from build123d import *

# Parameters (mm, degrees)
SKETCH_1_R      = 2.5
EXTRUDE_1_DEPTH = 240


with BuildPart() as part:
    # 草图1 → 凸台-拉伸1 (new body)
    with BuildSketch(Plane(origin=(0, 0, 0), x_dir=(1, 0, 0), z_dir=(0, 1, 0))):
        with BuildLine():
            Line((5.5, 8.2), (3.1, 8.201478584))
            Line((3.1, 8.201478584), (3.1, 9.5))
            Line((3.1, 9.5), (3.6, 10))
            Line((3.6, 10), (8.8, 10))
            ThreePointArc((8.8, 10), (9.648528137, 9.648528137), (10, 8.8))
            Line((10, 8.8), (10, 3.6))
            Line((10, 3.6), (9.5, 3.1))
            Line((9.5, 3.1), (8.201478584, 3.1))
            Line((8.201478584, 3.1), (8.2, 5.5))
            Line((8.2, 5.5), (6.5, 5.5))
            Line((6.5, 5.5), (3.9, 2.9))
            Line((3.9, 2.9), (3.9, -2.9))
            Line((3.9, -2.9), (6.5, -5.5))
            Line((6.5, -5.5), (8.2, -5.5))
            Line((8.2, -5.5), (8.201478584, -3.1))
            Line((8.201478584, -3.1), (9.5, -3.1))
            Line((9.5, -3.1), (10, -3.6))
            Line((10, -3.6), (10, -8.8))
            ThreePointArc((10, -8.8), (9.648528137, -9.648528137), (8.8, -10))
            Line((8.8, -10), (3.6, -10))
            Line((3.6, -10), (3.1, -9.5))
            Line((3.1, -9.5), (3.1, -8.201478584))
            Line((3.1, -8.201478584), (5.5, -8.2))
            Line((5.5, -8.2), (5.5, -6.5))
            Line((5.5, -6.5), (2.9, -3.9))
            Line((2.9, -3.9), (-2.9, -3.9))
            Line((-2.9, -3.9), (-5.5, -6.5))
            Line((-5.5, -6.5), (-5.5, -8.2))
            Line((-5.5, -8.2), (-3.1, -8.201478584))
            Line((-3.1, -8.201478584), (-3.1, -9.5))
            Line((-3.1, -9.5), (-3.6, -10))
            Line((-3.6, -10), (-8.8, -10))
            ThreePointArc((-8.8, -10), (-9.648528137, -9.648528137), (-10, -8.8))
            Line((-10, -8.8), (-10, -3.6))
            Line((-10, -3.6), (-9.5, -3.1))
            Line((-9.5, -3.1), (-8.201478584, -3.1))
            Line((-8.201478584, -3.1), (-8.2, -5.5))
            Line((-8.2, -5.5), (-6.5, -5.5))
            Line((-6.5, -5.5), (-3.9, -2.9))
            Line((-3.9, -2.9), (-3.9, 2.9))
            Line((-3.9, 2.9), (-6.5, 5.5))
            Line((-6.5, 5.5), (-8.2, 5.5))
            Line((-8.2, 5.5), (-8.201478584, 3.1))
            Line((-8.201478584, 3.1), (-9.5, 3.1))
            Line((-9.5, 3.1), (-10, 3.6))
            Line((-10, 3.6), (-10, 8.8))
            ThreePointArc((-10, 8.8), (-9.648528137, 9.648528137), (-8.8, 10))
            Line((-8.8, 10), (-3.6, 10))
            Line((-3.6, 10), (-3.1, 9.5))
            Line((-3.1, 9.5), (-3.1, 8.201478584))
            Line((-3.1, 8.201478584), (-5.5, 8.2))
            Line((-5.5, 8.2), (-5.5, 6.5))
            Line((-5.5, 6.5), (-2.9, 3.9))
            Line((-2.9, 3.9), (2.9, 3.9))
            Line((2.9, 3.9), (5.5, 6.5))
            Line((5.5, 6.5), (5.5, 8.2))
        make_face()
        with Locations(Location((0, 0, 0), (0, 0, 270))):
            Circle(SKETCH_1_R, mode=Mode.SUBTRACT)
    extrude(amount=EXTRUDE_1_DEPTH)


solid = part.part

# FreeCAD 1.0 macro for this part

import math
import FreeCAD as App
import Part
import Sketcher

V = App.Vector
Q = App.Units.Quantity

doc = App.newDocument("Part")
body = doc.addObject("PartDesign::Body", "Body")

# Sketch on XZ plane
sketch1 = body.newObject("Sketcher::SketchObject", "Sketch")
sketch1.AttachmentSupport = (doc.getObject("XZ_Plane"), [""])
sketch1.MapMode = "FlatFace"
sketch1.addGeometry(Part.LineSegment(V(3.1, -8.201479, 0), V(5.5, -8.2, 0)), False)
sketch1.addGeometry(Part.LineSegment(V(5.5, -8.2, 0), V(5.5, -6.5, 0)), False)
sketch1.addGeometry(Part.LineSegment(V(5.5, -6.5, 0), V(2.9, -3.9, 0)), False)
sketch1.addGeometry(Part.LineSegment(V(2.9, -3.9, 0), V(-2.9, -3.9, 0)), False)
sketch1.addGeometry(Part.LineSegment(V(-2.9, -3.9, 0), V(-5.5, -6.5, 0)), False)
sketch1.addGeometry(Part.LineSegment(V(-5.5, -6.5, 0), V(-5.5, -8.2, 0)), False)
sketch1.addGeometry(Part.LineSegment(V(-5.5, -8.2, 0), V(-3.1, -8.201479, 0)), False)
sketch1.addGeometry(Part.LineSegment(V(-3.1, -8.201479, 0), V(-3.1, -9.5, 0)), False)
sketch1.addGeometry(Part.LineSegment(V(-3.1, -9.5, 0), V(-3.6, -10, 0)), False)
sketch1.addGeometry(Part.LineSegment(V(-3.6, -10, 0), V(-8.8, -10, 0)), False)
sketch1.addGeometry(Part.ArcOfCircle(Part.Circle(V(-8.8, -8.8, 0), V(0, 0, 1), 1.2), math.radians(-180), math.radians(-90)), False)
sketch1.addGeometry(Part.LineSegment(V(-10, -8.8, 0), V(-10, -3.6, 0)), False)
sketch1.addGeometry(Part.LineSegment(V(-10, -3.6, 0), V(-9.5, -3.1, 0)), False)
sketch1.addGeometry(Part.LineSegment(V(-9.5, -3.1, 0), V(-8.201479, -3.1, 0)), False)
sketch1.addGeometry(Part.LineSegment(V(-8.201479, -3.1, 0), V(-8.2, -5.5, 0)), False)
sketch1.addGeometry(Part.LineSegment(V(-8.2, -5.5, 0), V(-6.5, -5.5, 0)), False)
sketch1.addGeometry(Part.LineSegment(V(-6.5, -5.5, 0), V(-3.9, -2.9, 0)), False)
sketch1.addGeometry(Part.LineSegment(V(-3.9, -2.9, 0), V(-3.9, 2.9, 0)), False)
sketch1.addGeometry(Part.LineSegment(V(-3.9, 2.9, 0), V(-6.5, 5.5, 0)), False)
sketch1.addGeometry(Part.LineSegment(V(-6.5, 5.5, 0), V(-8.2, 5.5, 0)), False)
sketch1.addGeometry(Part.LineSegment(V(-8.2, 5.5, 0), V(-8.201479, 3.1, 0)), False)
sketch1.addGeometry(Part.LineSegment(V(-8.201479, 3.1, 0), V(-9.5, 3.1, 0)), False)
sketch1.addGeometry(Part.LineSegment(V(-9.5, 3.1, 0), V(-10, 3.6, 0)), False)
sketch1.addGeometry(Part.LineSegment(V(-10, 3.6, 0), V(-10, 8.8, 0)), False)
sketch1.addGeometry(Part.ArcOfCircle(Part.Circle(V(-8.8, 8.8, 0), V(0, 0, 1), 1.2), math.radians(90), math.radians(180)), False)
sketch1.addGeometry(Part.LineSegment(V(-8.8, 10, 0), V(-3.6, 10, 0)), False)
sketch1.addGeometry(Part.LineSegment(V(-3.6, 10, 0), V(-3.1, 9.5, 0)), False)
sketch1.addGeometry(Part.LineSegment(V(-3.1, 9.5, 0), V(-3.1, 8.201479, 0)), False)
sketch1.addGeometry(Part.LineSegment(V(-3.1, 8.201479, 0), V(-5.5, 8.2, 0)), False)
sketch1.addGeometry(Part.LineSegment(V(-5.5, 8.2, 0), V(-5.5, 6.5, 0)), False)
sketch1.addGeometry(Part.LineSegment(V(-5.5, 6.5, 0), V(-2.9, 3.9, 0)), False)
sketch1.addGeometry(Part.LineSegment(V(-2.9, 3.9, 0), V(2.9, 3.9, 0)), False)
sketch1.addGeometry(Part.LineSegment(V(2.9, 3.9, 0), V(5.5, 6.5, 0)), False)
sketch1.addGeometry(Part.LineSegment(V(5.5, 6.5, 0), V(5.5, 8.2, 0)), False)
sketch1.addGeometry(Part.LineSegment(V(5.5, 8.2, 0), V(3.1, 8.201479, 0)), False)
sketch1.addGeometry(Part.LineSegment(V(3.1, 8.201479, 0), V(3.1, 9.5, 0)), False)
sketch1.addGeometry(Part.LineSegment(V(3.1, 9.5, 0), V(3.6, 10, 0)), False)
sketch1.addGeometry(Part.LineSegment(V(3.6, 10, 0), V(8.8, 10, 0)), False)
sketch1.addGeometry(Part.ArcOfCircle(Part.Circle(V(8.8, 8.8, 0), V(0, 0, 1), 1.2), math.radians(0), math.radians(90)), False)
sketch1.addGeometry(Part.LineSegment(V(10, 8.8, 0), V(10, 3.6, 0)), False)
sketch1.addGeometry(Part.LineSegment(V(10, 3.6, 0), V(9.5, 3.1, 0)), False)
sketch1.addGeometry(Part.LineSegment(V(9.5, 3.1, 0), V(8.201479, 3.1, 0)), False)
sketch1.addGeometry(Part.LineSegment(V(8.201479, 3.1, 0), V(8.2, 5.5, 0)), False)
sketch1.addGeometry(Part.LineSegment(V(8.2, 5.5, 0), V(6.5, 5.5, 0)), False)
sketch1.addGeometry(Part.LineSegment(V(6.5, 5.5, 0), V(3.9, 2.9, 0)), False)
sketch1.addGeometry(Part.LineSegment(V(3.9, 2.9, 0), V(3.9, -2.9, 0)), False)
sketch1.addGeometry(Part.LineSegment(V(3.9, -2.9, 0), V(6.5, -5.5, 0)), False)
sketch1.addGeometry(Part.LineSegment(V(6.5, -5.5, 0), V(8.2, -5.5, 0)), False)
sketch1.addGeometry(Part.LineSegment(V(8.2, -5.5, 0), V(8.201479, -3.1, 0)), False)
sketch1.addGeometry(Part.LineSegment(V(8.201479, -3.1, 0), V(9.5, -3.1, 0)), False)
sketch1.addGeometry(Part.LineSegment(V(9.5, -3.1, 0), V(10, -3.6, 0)), False)
sketch1.addGeometry(Part.LineSegment(V(10, -3.6, 0), V(10, -8.8, 0)), False)
sketch1.addGeometry(Part.ArcOfCircle(Part.Circle(V(8.8, -8.8, 0), V(0, 0, 1), 1.2), math.radians(-90), math.radians(0)), False)
sketch1.addGeometry(Part.LineSegment(V(8.8, -10, 0), V(3.6, -10, 0)), False)
sketch1.addGeometry(Part.LineSegment(V(3.6, -10, 0), V(3.1, -9.5, 0)), False)
sketch1.addGeometry(Part.LineSegment(V(3.1, -9.5, 0), V(3.1, -8.201479, 0)), False)
sketch1.addGeometry(Part.Circle(V(0, 0, 0), V(0, 0, 1), 2.5), False)
sketch1.addConstraint(Sketcher.Constraint("Coincident", 0, 2, 1, 1))
sketch1.addConstraint(Sketcher.Constraint("Coincident", 1, 2, 2, 1))
sketch1.addConstraint(Sketcher.Constraint("Coincident", 2, 2, 3, 1))
sketch1.addConstraint(Sketcher.Constraint("Coincident", 3, 2, 4, 1))
sketch1.addConstraint(Sketcher.Constraint("Coincident", 4, 2, 5, 1))
sketch1.addConstraint(Sketcher.Constraint("Coincident", 5, 2, 6, 1))
sketch1.addConstraint(Sketcher.Constraint("Coincident", 6, 2, 7, 1))
sketch1.addConstraint(Sketcher.Constraint("Coincident", 7, 2, 8, 1))
sketch1.addConstraint(Sketcher.Constraint("Coincident", 8, 2, 9, 1))
sketch1.addConstraint(Sketcher.Constraint("Tangent", 9, 2, 10, 2))
sketch1.addConstraint(Sketcher.Constraint("Tangent", 10, 1, 11, 1))
sketch1.addConstraint(Sketcher.Constraint("Coincident", 11, 2, 12, 1))
sketch1.addConstraint(Sketcher.Constraint("Coincident", 12, 2, 13, 1))
sketch1.addConstraint(Sketcher.Constraint("Coincident", 13, 2, 14, 1))
sketch1.addConstraint(Sketcher.Constraint("Coincident", 14, 2, 15, 1))
sketch1.addConstraint(Sketcher.Constraint("Coincident", 15, 2, 16, 1))
sketch1.addConstraint(Sketcher.Constraint("Coincident", 16, 2, 17, 1))
sketch1.addConstraint(Sketcher.Constraint("Coincident", 17, 2, 18, 1))
sketch1.addConstraint(Sketcher.Constraint("Coincident", 18, 2, 19, 1))
sketch1.addConstraint(Sketcher.Constraint("Coincident", 19, 2, 20, 1))
sketch1.addConstraint(Sketcher.Constraint("Coincident", 20, 2, 21, 1))
sketch1.addConstraint(Sketcher.Constraint("Coincident", 21, 2, 22, 1))
sketch1.addConstraint(Sketcher.Constraint("Coincident", 22, 2, 23, 1))
sketch1.addConstraint(Sketcher.Constraint("Tangent", 23, 2, 24, 2))
sketch1.addConstraint(Sketcher.Constraint("Tangent", 24, 1, 25, 1))
sketch1.addConstraint(Sketcher.Constraint("Coincident", 25, 2, 26, 1))
sketch1.addConstraint(Sketcher.Constraint("Coincident", 26, 2, 27, 1))
sketch1.addConstraint(Sketcher.Constraint("Coincident", 27, 2, 28, 1))
sketch1.addConstraint(Sketcher.Constraint("Coincident", 28, 2, 29, 1))
sketch1.addConstraint(Sketcher.Constraint("Coincident", 29, 2, 30, 1))
sketch1.addConstraint(Sketcher.Constraint("Coincident", 30, 2, 31, 1))
sketch1.addConstraint(Sketcher.Constraint("Coincident", 31, 2, 32, 1))
sketch1.addConstraint(Sketcher.Constraint("Coincident", 32, 2, 33, 1))
sketch1.addConstraint(Sketcher.Constraint("Coincident", 33, 2, 34, 1))
sketch1.addConstraint(Sketcher.Constraint("Coincident", 34, 2, 35, 1))
sketch1.addConstraint(Sketcher.Constraint("Coincident", 35, 2, 36, 1))
sketch1.addConstraint(Sketcher.Constraint("Coincident", 36, 2, 37, 1))
sketch1.addConstraint(Sketcher.Constraint("Tangent", 37, 2, 38, 2))
sketch1.addConstraint(Sketcher.Constraint("Tangent", 38, 1, 39, 1))
sketch1.addConstraint(Sketcher.Constraint("Coincident", 39, 2, 40, 1))
sketch1.addConstraint(Sketcher.Constraint("Coincident", 40, 2, 41, 1))
sketch1.addConstraint(Sketcher.Constraint("Coincident", 41, 2, 42, 1))
sketch1.addConstraint(Sketcher.Constraint("Coincident", 42, 2, 43, 1))
sketch1.addConstraint(Sketcher.Constraint("Coincident", 43, 2, 44, 1))
sketch1.addConstraint(Sketcher.Constraint("Coincident", 44, 2, 45, 1))
sketch1.addConstraint(Sketcher.Constraint("Coincident", 45, 2, 46, 1))
sketch1.addConstraint(Sketcher.Constraint("Coincident", 46, 2, 47, 1))
sketch1.addConstraint(Sketcher.Constraint("Coincident", 47, 2, 48, 1))
sketch1.addConstraint(Sketcher.Constraint("Coincident", 48, 2, 49, 1))
sketch1.addConstraint(Sketcher.Constraint("Coincident", 49, 2, 50, 1))
sketch1.addConstraint(Sketcher.Constraint("Coincident", 50, 2, 51, 1))
sketch1.addConstraint(Sketcher.Constraint("Tangent", 51, 2, 52, 2))
sketch1.addConstraint(Sketcher.Constraint("Tangent", 52, 1, 53, 1))
sketch1.addConstraint(Sketcher.Constraint("Coincident", 53, 2, 54, 1))
sketch1.addConstraint(Sketcher.Constraint("Coincident", 54, 2, 55, 1))
sketch1.addConstraint(Sketcher.Constraint("Coincident", 55, 2, 0, 1))
sketch1.addConstraint(Sketcher.Constraint("Vertical", 1))
sketch1.addConstraint(Sketcher.Constraint("Horizontal", 3))
sketch1.addConstraint(Sketcher.Constraint("Vertical", 5))
sketch1.addConstraint(Sketcher.Constraint("Vertical", 7))
sketch1.addConstraint(Sketcher.Constraint("Horizontal", 9))
sketch1.addConstraint(Sketcher.Constraint("Vertical", 11))
sketch1.addConstraint(Sketcher.Constraint("Horizontal", 13))
sketch1.addConstraint(Sketcher.Constraint("Horizontal", 15))
sketch1.addConstraint(Sketcher.Constraint("Vertical", 17))
sketch1.addConstraint(Sketcher.Constraint("Horizontal", 19))
sketch1.addConstraint(Sketcher.Constraint("Horizontal", 21))
sketch1.addConstraint(Sketcher.Constraint("Vertical", 23))
sketch1.addConstraint(Sketcher.Constraint("Horizontal", 25))
sketch1.addConstraint(Sketcher.Constraint("Vertical", 27))
sketch1.addConstraint(Sketcher.Constraint("Vertical", 29))
sketch1.addConstraint(Sketcher.Constraint("Horizontal", 31))
sketch1.addConstraint(Sketcher.Constraint("Vertical", 33))
sketch1.addConstraint(Sketcher.Constraint("Vertical", 35))
sketch1.addConstraint(Sketcher.Constraint("Horizontal", 37))
sketch1.addConstraint(Sketcher.Constraint("Vertical", 39))
sketch1.addConstraint(Sketcher.Constraint("Horizontal", 41))
sketch1.addConstraint(Sketcher.Constraint("Horizontal", 43))
sketch1.addConstraint(Sketcher.Constraint("Vertical", 45))
sketch1.addConstraint(Sketcher.Constraint("Horizontal", 47))
sketch1.addConstraint(Sketcher.Constraint("Horizontal", 49))
sketch1.addConstraint(Sketcher.Constraint("Vertical", 51))
sketch1.addConstraint(Sketcher.Constraint("Horizontal", 53))
sketch1.addConstraint(Sketcher.Constraint("Vertical", 55))
sketch1.addConstraint(Sketcher.Constraint("Coincident", 56, 3, -1, 1))
sketch1.addConstraint(Sketcher.Constraint("Equal", 10, 24))
sketch1.addConstraint(Sketcher.Constraint("Equal", 24, 38))
sketch1.addConstraint(Sketcher.Constraint("Equal", 38, 52))
sketch1.addConstraint(Sketcher.Constraint("Symmetric", 10, 3, 38, 3, -1, 1))
sketch1.addConstraint(Sketcher.Constraint("Symmetric", 24, 3, 52, 3, -1, 1))
sketch1.addConstraint(Sketcher.Constraint("Symmetric", 0, 2, 28, 2, -1, 1))
sketch1.addConstraint(Sketcher.Constraint("Symmetric", 2, 2, 30, 2, -1, 1))
sketch1.addConstraint(Sketcher.Constraint("Symmetric", 4, 2, 32, 2, -1, 1))
sketch1.addConstraint(Sketcher.Constraint("Symmetric", 6, 2, 34, 2, -1, 1))
sketch1.addConstraint(Sketcher.Constraint("Symmetric", 12, 2, 40, 2, -1, 1))
sketch1.addConstraint(Sketcher.Constraint("Symmetric", 14, 2, 42, 2, -1, 1))
sketch1.addConstraint(Sketcher.Constraint("Symmetric", 16, 2, 44, 2, -1, 1))
sketch1.addConstraint(Sketcher.Constraint("Symmetric", 18, 2, 46, 2, -1, 1))
sketch1.addConstraint(Sketcher.Constraint("Symmetric", 20, 2, 48, 2, -1, 1))
sketch1.addConstraint(Sketcher.Constraint("Symmetric", 26, 2, 54, 2, -1, 1))
sketch1.addConstraint(Sketcher.Constraint("Symmetric", 24, 3, 38, 3, -2))
sketch1.addConstraint(Sketcher.Constraint("Symmetric", 1, 2, 4, 2, -2))
sketch1.addConstraint(Sketcher.Constraint("Symmetric", 27, 2, 34, 2, -2))
sketch1.addConstraint(Sketcher.Constraint("Symmetric", 21, 2, 40, 2, -2))
sketch1.addConstraint(Sketcher.Constraint("Symmetric", 19, 2, 42, 2, -2))
sketch1.addConstraint(Sketcher.Constraint("Perpendicular", 2, 4))
sketch1.addConstraint(Sketcher.Constraint("Parallel", 4, 8))
sketch1.addConstraint(Sketcher.Constraint("Parallel", 8, 12))
sketch1.addConstraint(Sketcher.Constraint("Perpendicular", 0, 14))
sketch1.addConstraint(Sketcher.Constraint("Parallel", 12, 16))
sketch1.addConstraint(Sketcher.Constraint("Perpendicular", 16, 18))
sketch1.addConstraint(Sketcher.Constraint("Perpendicular", 6, 20))
sketch1.addConstraint(Sketcher.Constraint("Parallel", 18, 22))
sketch1.addConstraint(Sketcher.Constraint("Parallel", 22, 26))
sketch1.addConstraint(Sketcher.Constraint("Perpendicular", 14, 28))
sketch1.addConstraint(Sketcher.Constraint("Parallel", 26, 30))
sketch1.addConstraint(Sketcher.Constraint("Perpendicular", 30, 32))
sketch1.addConstraint(Sketcher.Constraint("Perpendicular", 20, 34))
sketch1.addConstraint(Sketcher.Constraint("Parallel", 32, 36))
sketch1.addConstraint(Sketcher.Constraint("Parallel", 36, 40))
sketch1.addConstraint(Sketcher.Constraint("Perpendicular", 28, 42))
sketch1.addConstraint(Sketcher.Constraint("Parallel", 40, 44))
sketch1.addConstraint(Sketcher.Constraint("Perpendicular", 44, 46))
sketch1.addConstraint(Sketcher.Constraint("Perpendicular", 34, 48))
sketch1.addConstraint(Sketcher.Constraint("Parallel", 46, 50))
sketch1.addConstraint(Sketcher.Constraint("Parallel", 50, 54))
sketch1.addConstraint(Sketcher.Constraint("Horizontal", 0, 2, 5, 2))
sketch1.addConstraint(Sketcher.Constraint("Horizontal", 26, 2, 35, 2))
sketch1.addConstraint(Sketcher.Constraint("Horizontal", 22, 2, 39, 2))
sketch1.addConstraint(Sketcher.Constraint("Horizontal", 17, 2, 44, 2))
sketch1.addConstraint(Sketcher.Constraint("Horizontal", 11, 2, 50, 2))
sketch1.addConstraint(Sketcher.Constraint("Horizontal", 7, 2, 54, 2))
sketch1.addConstraint(Sketcher.Constraint("Equal", 47, 1))
sketch1.addConstraint(Sketcher.Constraint("Equal", 49, 7))
sketch1.addConstraint(Sketcher.Constraint("Equal", 53, 11))
sketch1.addConstraint(Sketcher.Constraint("Equal", 31, 17))
sketch1.addConstraint(Sketcher.Constraint("Equal", 8, 12))
sketch1.addConstraint(Sketcher.Constraint("Equal", 6, 14))
sketch1.addConstraint(Sketcher.Constraint("Equal", 4, 16))
sketch1.addConstraint(Sketcher.Constraint("Diameter", 56, Q("5 mm")))
sketch1.addConstraint(Sketcher.Constraint("Radius", 10, Q("1.2 mm")))
sketch1.addConstraint(Sketcher.Constraint("DistanceX", 3, 2, 3, 1, Q("5.8 mm")))
sketch1.addConstraint(Sketcher.Constraint("DistanceX", 9, 2, 9, 1, Q("5.2 mm")))
sketch1.addConstraint(Sketcher.Constraint("DistanceX", 15, 1, 15, 2, Q("1.7 mm")))
sketch1.addConstraint(Sketcher.Constraint("DistanceY", 8, 2, -1, 1, Q("10 mm")))
sketch1.addConstraint(Sketcher.Constraint("Distance", 0, Q("2.4 mm")))
sketch1.addConstraint(Sketcher.Constraint("DistanceX", -1, 1, 0, 2, Q("5.5 mm")))
sketch1.addConstraint(Sketcher.Constraint("DistanceY", 0, 2, -1, 1, Q("8.2 mm")))
sketch1.addConstraint(Sketcher.Constraint("DistanceX", 13, 1, 13, 2, Q("1.298521 mm")))
pad1 = body.newObject("PartDesign::Pad", "Pad")
pad1.Profile = sketch1
pad1.Length = 240
pad1.Reversed = True

doc.recompute()
